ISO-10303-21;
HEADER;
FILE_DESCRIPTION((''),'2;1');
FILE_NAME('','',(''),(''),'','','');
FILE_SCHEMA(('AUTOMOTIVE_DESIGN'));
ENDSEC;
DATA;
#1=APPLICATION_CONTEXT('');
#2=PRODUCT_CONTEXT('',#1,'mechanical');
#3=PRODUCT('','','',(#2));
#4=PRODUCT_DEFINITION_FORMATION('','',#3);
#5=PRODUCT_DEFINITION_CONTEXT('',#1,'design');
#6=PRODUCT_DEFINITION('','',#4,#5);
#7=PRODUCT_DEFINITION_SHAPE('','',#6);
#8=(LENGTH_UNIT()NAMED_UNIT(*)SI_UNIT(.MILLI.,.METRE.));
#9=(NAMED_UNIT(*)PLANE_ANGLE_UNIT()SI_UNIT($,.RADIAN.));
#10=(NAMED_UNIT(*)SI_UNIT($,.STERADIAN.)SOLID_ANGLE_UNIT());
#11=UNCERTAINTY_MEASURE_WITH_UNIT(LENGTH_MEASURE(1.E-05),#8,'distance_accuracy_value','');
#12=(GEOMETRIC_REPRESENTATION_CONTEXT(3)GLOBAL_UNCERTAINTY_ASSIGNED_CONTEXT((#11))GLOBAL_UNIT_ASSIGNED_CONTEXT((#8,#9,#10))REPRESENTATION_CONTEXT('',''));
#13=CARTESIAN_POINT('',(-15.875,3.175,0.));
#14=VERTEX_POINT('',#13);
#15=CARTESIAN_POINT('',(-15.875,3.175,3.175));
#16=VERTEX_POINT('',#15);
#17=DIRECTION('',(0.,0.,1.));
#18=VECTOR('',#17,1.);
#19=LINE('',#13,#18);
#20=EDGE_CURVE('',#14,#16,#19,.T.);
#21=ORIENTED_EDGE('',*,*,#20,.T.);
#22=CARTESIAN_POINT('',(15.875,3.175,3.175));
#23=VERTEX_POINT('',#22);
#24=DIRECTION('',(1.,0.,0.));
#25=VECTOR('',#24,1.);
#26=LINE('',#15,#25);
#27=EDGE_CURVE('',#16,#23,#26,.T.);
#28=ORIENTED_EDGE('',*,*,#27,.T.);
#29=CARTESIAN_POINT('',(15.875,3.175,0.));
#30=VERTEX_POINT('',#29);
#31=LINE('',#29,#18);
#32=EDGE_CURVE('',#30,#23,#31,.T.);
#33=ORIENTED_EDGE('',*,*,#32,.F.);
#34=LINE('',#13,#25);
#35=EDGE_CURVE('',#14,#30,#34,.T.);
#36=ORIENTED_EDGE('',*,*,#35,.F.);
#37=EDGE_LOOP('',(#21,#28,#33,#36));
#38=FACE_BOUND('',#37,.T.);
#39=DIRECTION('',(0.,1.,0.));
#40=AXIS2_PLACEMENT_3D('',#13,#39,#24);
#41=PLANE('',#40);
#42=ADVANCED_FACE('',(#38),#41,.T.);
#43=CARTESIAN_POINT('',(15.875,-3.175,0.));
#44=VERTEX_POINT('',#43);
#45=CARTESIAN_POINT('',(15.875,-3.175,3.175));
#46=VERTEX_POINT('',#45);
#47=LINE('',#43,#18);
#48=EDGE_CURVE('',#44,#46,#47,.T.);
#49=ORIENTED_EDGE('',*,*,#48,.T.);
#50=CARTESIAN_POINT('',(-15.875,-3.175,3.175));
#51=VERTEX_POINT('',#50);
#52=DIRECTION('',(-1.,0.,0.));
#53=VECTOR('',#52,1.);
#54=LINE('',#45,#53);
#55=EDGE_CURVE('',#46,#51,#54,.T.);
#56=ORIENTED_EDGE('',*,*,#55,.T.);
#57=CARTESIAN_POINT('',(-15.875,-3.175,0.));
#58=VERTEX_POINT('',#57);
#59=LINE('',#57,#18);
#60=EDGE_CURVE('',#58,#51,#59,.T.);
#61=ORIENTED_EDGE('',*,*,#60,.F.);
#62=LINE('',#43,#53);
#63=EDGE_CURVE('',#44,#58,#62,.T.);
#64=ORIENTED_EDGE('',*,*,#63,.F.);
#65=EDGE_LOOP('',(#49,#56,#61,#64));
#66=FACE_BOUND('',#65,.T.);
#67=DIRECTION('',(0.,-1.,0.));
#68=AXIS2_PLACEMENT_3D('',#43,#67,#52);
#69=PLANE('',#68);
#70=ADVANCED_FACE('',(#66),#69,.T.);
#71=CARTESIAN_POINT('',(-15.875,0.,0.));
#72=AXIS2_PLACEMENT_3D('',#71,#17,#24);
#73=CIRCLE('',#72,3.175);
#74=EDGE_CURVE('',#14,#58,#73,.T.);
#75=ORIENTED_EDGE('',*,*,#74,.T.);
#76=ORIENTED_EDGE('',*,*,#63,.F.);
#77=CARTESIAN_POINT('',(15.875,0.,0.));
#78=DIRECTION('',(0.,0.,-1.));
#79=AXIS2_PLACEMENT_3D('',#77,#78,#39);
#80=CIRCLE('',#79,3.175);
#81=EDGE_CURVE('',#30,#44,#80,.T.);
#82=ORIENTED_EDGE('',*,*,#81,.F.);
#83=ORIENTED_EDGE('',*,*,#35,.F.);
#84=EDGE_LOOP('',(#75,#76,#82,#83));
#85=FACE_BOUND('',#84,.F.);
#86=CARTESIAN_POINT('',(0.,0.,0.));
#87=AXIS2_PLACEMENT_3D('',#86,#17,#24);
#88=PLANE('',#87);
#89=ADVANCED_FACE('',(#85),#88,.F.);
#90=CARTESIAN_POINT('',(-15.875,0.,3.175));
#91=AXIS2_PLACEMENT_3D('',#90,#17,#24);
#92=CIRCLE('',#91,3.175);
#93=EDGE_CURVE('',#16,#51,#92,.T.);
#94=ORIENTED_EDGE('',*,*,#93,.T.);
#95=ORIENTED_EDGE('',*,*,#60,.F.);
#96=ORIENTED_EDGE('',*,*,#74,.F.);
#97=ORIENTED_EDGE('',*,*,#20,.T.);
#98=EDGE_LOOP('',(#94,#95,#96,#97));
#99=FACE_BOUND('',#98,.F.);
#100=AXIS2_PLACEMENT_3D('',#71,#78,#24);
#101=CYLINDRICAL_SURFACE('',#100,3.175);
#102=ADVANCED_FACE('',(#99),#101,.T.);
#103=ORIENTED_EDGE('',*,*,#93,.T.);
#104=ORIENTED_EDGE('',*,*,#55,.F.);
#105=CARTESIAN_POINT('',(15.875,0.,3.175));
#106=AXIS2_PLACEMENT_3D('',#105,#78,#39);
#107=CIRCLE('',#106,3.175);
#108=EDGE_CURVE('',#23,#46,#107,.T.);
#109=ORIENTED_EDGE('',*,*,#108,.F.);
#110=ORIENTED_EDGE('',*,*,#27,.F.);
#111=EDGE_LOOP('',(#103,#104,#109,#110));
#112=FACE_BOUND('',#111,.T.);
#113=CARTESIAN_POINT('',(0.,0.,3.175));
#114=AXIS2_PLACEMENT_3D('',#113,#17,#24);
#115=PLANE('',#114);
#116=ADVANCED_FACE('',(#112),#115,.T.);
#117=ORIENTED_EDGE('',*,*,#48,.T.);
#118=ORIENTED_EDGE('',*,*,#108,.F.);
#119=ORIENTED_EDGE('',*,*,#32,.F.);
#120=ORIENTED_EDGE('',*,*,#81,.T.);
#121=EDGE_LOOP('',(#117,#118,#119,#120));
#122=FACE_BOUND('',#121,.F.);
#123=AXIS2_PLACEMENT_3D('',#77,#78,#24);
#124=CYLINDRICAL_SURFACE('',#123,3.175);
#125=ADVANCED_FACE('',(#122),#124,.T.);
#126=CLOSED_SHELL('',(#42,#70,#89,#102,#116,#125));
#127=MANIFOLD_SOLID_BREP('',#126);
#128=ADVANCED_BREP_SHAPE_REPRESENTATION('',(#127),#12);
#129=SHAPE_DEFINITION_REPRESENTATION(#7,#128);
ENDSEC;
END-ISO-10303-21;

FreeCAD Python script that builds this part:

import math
import FreeCAD as App
import Part
import Sketcher
from FreeCAD import Vector
Q = App.Units.Quantity

doc = App.newDocument("Part")
body = doc.addObject("PartDesign::Body", "Body")

sketch1 = body.newObject("Sketcher::SketchObject", "Sketch")
sketch1.AttachmentSupport = (doc.getObject("XY_Plane"), [""])
sketch1.MapMode = "FlatFace"
sketch1.addGeometry(Part.LineSegment(Vector(-15.9, -3.2, 0), Vector(15.9, -3.2, 0)), False)
sketch1.addGeometry(Part.ArcOfCircle(Part.Circle(Vector(15.9, 0, 0), Vector(0, 0, 1), 3.2), math.radians(-90), math.radians(90)), False)
sketch1.addGeometry(Part.LineSegment(Vector(15.9, 3.2, 0), Vector(-15.9, 3.2, 0)), False)
sketch1.addGeometry(Part.ArcOfCircle(Part.Circle(Vector(-15.9, 0, 0), Vector(0, 0, 1), 3.2), math.radians(90), math.radians(270)), False)
sketch1.addConstraint(Sketcher.Constraint("Tangent", 0, 2, 1, 1))
sketch1.addConstraint(Sketcher.Constraint("Tangent", 1, 2, 2, 1))
sketch1.addConstraint(Sketcher.Constraint("Tangent", 2, 2, 3, 1))
sketch1.addConstraint(Sketcher.Constraint("Tangent", 3, 2, 0, 1))
sketch1.addConstraint(Sketcher.Constraint("Horizontal", 0))
sketch1.addConstraint(Sketcher.Constraint("Horizontal", 2))
sketch1.addConstraint(Sketcher.Constraint("Symmetric", 1, 3, 3, 3, -1, 1))
sketch1.addConstraint(Sketcher.Constraint("Radius", 1, Q("0.125 in")))
sketch1.addConstraint(Sketcher.Constraint("DistanceX", 0, 1, 0, 2, Q("1.25 in")))
pad1 = body.newObject("PartDesign::Pad", "Pad")
pad1.Profile = sketch1
pad1.Length = Q("0.125 in")

doc.recompute()
